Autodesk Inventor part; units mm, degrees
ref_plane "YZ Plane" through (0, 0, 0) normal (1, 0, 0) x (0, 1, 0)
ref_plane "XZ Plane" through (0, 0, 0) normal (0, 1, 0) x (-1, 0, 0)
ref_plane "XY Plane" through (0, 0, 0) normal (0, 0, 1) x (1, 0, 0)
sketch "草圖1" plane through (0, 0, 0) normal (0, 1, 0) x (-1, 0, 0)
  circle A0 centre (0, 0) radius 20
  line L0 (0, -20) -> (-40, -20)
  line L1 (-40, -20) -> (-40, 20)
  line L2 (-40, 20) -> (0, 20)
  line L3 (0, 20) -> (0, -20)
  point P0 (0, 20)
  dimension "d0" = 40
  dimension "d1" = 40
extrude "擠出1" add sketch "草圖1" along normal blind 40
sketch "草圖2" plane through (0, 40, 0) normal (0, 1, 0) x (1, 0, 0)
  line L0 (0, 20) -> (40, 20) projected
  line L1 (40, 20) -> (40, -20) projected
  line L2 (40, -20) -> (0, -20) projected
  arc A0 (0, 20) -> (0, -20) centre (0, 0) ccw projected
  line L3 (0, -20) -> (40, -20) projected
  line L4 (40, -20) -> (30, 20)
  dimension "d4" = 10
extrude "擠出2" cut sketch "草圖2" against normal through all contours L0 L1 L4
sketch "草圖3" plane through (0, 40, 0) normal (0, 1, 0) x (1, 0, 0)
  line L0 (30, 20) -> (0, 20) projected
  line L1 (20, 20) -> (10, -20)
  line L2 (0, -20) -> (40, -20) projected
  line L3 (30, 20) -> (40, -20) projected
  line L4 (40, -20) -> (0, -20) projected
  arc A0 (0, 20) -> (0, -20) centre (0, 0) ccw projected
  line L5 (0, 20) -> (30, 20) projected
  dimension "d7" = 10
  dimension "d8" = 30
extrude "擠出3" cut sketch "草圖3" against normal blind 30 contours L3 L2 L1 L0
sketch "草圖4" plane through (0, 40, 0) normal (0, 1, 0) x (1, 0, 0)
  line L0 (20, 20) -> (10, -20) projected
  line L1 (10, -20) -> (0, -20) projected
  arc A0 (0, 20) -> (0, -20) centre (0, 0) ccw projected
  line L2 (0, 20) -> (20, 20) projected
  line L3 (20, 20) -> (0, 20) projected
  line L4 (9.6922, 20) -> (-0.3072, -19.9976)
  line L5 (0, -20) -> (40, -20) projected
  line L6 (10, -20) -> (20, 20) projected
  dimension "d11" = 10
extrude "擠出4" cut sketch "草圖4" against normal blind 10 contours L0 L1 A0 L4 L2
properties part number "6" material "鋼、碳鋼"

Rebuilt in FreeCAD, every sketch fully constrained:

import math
import FreeCAD as App
import Part
import Sketcher

V = App.Vector

doc = App.newDocument("Part")
body = doc.addObject("PartDesign::Body", "Body")

sketch1 = doc.addObject("Sketcher::SketchObject", "Sketch")
body.addObject(sketch1)
sketch1.AttachmentSupport = (doc.XZ_Plane, [""])
sketch1.MapMode = "FlatFace"
sketch1.addGeometry([
    Part.ArcOfCircle(Part.Circle(V(0, 0, 0), V(0, 0, 1), 20), math.radians(90), math.radians(270)),
    Part.LineSegment(V(0, 20, 0), V(40, 20, 0)),
    Part.LineSegment(V(40, 20, 0), V(40, -20, 0)),
    Part.LineSegment(V(40, -20, 0), V(0, -20, 0)),
], False)
sketch1.addConstraint([
    Sketcher.Constraint("Tangent", 0, 1, 1, 1),
    Sketcher.Constraint("Coincident", 1, 2, 2, 1),
    Sketcher.Constraint("Coincident", 2, 2, 3, 1),
    Sketcher.Constraint("Tangent", 3, 2, 0, 2),
    Sketcher.Constraint("Horizontal", 1),
    Sketcher.Constraint("Vertical", 2),
    Sketcher.Constraint("Horizontal", 3),
    Sketcher.Constraint("Coincident", 0, 3, -1, 1),
    Sketcher.Constraint("Equal", 3, 2),
    Sketcher.Constraint("Radius", 0, 20.0),
])
pad1 = doc.addObject("PartDesign::Pad", "Pad")
body.addObject(pad1)
pad1.Profile = sketch1
pad1.Length = 40
pad1.Reversed = True

sketch2 = doc.addObject("Sketcher::SketchObject", "Sketch001")
body.addObject(sketch2)
sketch2.AttachmentSupport = (doc.XZ_Plane, [""])
sketch2.MapMode = "FlatFace"
sketch2.AttachmentOffset = App.Placement(V(0, 0, -40), App.Rotation())
sketch2.addGeometry([
    Part.LineSegment(V(40, -20, 0), V(30, -20, 0)),
    Part.LineSegment(V(30, -20, 0), V(40, 20, 0)),
    Part.LineSegment(V(40, 20, 0), V(40, -20, 0)),
], False)
sketch2.addConstraint([
    Sketcher.Constraint("Coincident", 0, 2, 1, 1),
    Sketcher.Constraint("Coincident", 1, 2, 2, 1),
    Sketcher.Constraint("Coincident", 2, 2, 0, 1),
    Sketcher.Constraint("Horizontal", 0),
    Sketcher.Constraint("Vertical", 2),
    Sketcher.Constraint("DistanceX", 0, 2, 0, 1, 10.0),
    Sketcher.Constraint("DistanceY", 2, 2, 2, 1, 40.0),
    Sketcher.Constraint("DistanceX", -1, 1, 0, 2, 30.0),
    Sketcher.Constraint("DistanceY", 0, 2, -1, 1, 20.0),
])
pocket1 = doc.addObject("PartDesign::Pocket", "Pocket")
body.addObject(pocket1)
pocket1.Profile = sketch2
pocket1.Type = "ThroughAll"
pocket1.Reversed = True

sketch3 = doc.addObject("Sketcher::SketchObject", "Sketch002")
body.addObject(sketch3)
sketch3.AttachmentSupport = (doc.XZ_Plane, [""])
sketch3.MapMode = "FlatFace"
sketch3.AttachmentOffset = App.Placement(V(0, 0, -40), App.Rotation())
sketch3.addGeometry([
    Part.LineSegment(V(40, 20, 0), V(30, -20, 0)),
    Part.LineSegment(V(30, -20, 0), V(20, -20, 0)),
    Part.LineSegment(V(20, -20, 0), V(10, 20, 0)),
    Part.LineSegment(V(10, 20, 0), V(40, 20, 0)),
], False)
sketch3.addConstraint([
    Sketcher.Constraint("Coincident", 0, 2, 1, 1),
    Sketcher.Constraint("Coincident", 1, 2, 2, 1),
    Sketcher.Constraint("Coincident", 2, 2, 3, 1),
    Sketcher.Constraint("Coincident", 3, 2, 0, 1),
    Sketcher.Constraint("Horizontal", 1),
    Sketcher.Constraint("Horizontal", 3),
    Sketcher.Constraint("Equal", 0, 2),
    Sketcher.Constraint("DistanceX", 1, 2, 1, 1, 10.0),
    Sketcher.Constraint("DistanceX", 3, 1, 3, 2, 30.0),
    Sketcher.Constraint("DistanceX", -1, 1, 0, 2, 30.0),
    Sketcher.Constraint("DistanceY", 0, 2, -1, 1, 20.0),
    Sketcher.Constraint("DistanceY", -1, 1, 2, 2, 20.0),
])
pocket2 = doc.addObject("PartDesign::Pocket", "Pocket001")
body.addObject(pocket2)
pocket2.Profile = sketch3
pocket2.Length = 30
pocket2.Reversed = True

sketch4 = doc.addObject("Sketcher::SketchObject", "Sketch003")
body.addObject(sketch4)
sketch4.AttachmentSupport = (doc.XZ_Plane, [""])
sketch4.MapMode = "FlatFace"
sketch4.AttachmentOffset = App.Placement(V(0, 0, -40), App.Rotation())
sketch4.addGeometry([
    Part.LineSegment(V(10, 20, 0), V(20, -20, 0)),
    Part.LineSegment(V(20, -20, 0), V(9.6922, -20, 0)),
    Part.LineSegment(V(9.6922, -20, 0), V(-0.3072, 19.9976, 0)),
    Part.ArcOfCircle(Part.Circle(V(0, 0, 0), V(0, 0, 1), 20), math.radians(90), math.radians(90.8801)),
    Part.LineSegment(V(0, 20, 0), V(10, 20, 0)),
], False)
sketch4.addConstraint([
    Sketcher.Constraint("Coincident", 0, 2, 1, 1),
    Sketcher.Constraint("Coincident", 1, 2, 2, 1),
    Sketcher.Constraint("Coincident", 2, 2, 3, 2),
    Sketcher.Constraint("Tangent", 3, 1, 4, 1),
    Sketcher.Constraint("Coincident", 4, 2, 0, 1),
    Sketcher.Constraint("Horizontal", 1),
    Sketcher.Constraint("Horizontal", 4),
    Sketcher.Constraint("Coincident", 3, 3, -1, 1),
    Sketcher.Constraint("Parallel", 0, 2),
    Sketcher.Constraint("DistanceX", 4, 1, 4, 2, 10.0),
    Sketcher.Constraint("Radius", 3, 20.0),
    Sketcher.Constraint("DistanceX", 4, 2, 0, 2, 10.0),
    Sketcher.Constraint("DistanceY", 0, 2, -1, 1, 20.0),
    Sketcher.Constraint("DistanceX", 1, 2, 1, 1, 10.3078),
])
pocket3 = doc.addObject("PartDesign::Pocket", "Pocket002")
body.addObject(pocket3)
pocket3.Profile = sketch4
pocket3.Length = 10
pocket3.Reversed = True

doc.recompute()
